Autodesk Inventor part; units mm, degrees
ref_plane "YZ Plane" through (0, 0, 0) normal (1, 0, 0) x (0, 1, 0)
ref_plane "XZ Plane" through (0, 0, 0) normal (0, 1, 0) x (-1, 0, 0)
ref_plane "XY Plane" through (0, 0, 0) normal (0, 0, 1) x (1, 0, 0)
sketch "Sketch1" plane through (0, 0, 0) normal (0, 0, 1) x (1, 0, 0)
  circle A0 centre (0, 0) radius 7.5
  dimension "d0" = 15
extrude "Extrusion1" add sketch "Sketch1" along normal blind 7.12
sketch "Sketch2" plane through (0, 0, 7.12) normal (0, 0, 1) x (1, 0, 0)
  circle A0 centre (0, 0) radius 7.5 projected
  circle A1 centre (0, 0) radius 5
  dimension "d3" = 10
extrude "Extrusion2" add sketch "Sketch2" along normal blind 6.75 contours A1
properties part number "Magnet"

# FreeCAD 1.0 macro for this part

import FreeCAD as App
import Part
import Sketcher
Q = App.Units.Quantity

doc = App.newDocument("Part")
body = doc.addObject("PartDesign::Body", "Body")

sketch1 = body.newObject("Sketcher::SketchObject", "Sketch")
sketch1.AttachmentSupport = (doc.getObject("XY_Plane"), [""])
sketch1.MapMode = "FlatFace"
sketch1.addGeometry(Part.Circle(App.Vector(0, 0, 0), App.Vector(0, 0, 1), 7.5), False)
sketch1.addConstraint([
    Sketcher.Constraint("Coincident", 0, 3, -1, 1),
    Sketcher.Constraint("Diameter", 0, Q("15 mm")),
])
pad1 = body.newObject("PartDesign::Pad", "Pad")
pad1.Profile = sketch1
pad1.Length = 7.12

sketch2 = body.newObject("Sketcher::SketchObject", "Sketch001")
sketch2.AttachmentSupport = (doc.getObject("XY_Plane"), [""])
sketch2.MapMode = "FlatFace"
sketch2.AttachmentOffset = App.Placement(App.Vector(0, 0, 7.12), App.Rotation())
sketch2.addGeometry(Part.Circle(App.Vector(0, 0, 0), App.Vector(0, 0, 1), 5), False)
sketch2.addConstraint([
    Sketcher.Constraint("Coincident", 0, 3, -1, 1),
    Sketcher.Constraint("Diameter", 0, Q("10 mm")),
])
pad2 = body.newObject("PartDesign::Pad", "Pad001")
pad2.Profile = sketch2
pad2.Length = 6.75

doc.recompute()
